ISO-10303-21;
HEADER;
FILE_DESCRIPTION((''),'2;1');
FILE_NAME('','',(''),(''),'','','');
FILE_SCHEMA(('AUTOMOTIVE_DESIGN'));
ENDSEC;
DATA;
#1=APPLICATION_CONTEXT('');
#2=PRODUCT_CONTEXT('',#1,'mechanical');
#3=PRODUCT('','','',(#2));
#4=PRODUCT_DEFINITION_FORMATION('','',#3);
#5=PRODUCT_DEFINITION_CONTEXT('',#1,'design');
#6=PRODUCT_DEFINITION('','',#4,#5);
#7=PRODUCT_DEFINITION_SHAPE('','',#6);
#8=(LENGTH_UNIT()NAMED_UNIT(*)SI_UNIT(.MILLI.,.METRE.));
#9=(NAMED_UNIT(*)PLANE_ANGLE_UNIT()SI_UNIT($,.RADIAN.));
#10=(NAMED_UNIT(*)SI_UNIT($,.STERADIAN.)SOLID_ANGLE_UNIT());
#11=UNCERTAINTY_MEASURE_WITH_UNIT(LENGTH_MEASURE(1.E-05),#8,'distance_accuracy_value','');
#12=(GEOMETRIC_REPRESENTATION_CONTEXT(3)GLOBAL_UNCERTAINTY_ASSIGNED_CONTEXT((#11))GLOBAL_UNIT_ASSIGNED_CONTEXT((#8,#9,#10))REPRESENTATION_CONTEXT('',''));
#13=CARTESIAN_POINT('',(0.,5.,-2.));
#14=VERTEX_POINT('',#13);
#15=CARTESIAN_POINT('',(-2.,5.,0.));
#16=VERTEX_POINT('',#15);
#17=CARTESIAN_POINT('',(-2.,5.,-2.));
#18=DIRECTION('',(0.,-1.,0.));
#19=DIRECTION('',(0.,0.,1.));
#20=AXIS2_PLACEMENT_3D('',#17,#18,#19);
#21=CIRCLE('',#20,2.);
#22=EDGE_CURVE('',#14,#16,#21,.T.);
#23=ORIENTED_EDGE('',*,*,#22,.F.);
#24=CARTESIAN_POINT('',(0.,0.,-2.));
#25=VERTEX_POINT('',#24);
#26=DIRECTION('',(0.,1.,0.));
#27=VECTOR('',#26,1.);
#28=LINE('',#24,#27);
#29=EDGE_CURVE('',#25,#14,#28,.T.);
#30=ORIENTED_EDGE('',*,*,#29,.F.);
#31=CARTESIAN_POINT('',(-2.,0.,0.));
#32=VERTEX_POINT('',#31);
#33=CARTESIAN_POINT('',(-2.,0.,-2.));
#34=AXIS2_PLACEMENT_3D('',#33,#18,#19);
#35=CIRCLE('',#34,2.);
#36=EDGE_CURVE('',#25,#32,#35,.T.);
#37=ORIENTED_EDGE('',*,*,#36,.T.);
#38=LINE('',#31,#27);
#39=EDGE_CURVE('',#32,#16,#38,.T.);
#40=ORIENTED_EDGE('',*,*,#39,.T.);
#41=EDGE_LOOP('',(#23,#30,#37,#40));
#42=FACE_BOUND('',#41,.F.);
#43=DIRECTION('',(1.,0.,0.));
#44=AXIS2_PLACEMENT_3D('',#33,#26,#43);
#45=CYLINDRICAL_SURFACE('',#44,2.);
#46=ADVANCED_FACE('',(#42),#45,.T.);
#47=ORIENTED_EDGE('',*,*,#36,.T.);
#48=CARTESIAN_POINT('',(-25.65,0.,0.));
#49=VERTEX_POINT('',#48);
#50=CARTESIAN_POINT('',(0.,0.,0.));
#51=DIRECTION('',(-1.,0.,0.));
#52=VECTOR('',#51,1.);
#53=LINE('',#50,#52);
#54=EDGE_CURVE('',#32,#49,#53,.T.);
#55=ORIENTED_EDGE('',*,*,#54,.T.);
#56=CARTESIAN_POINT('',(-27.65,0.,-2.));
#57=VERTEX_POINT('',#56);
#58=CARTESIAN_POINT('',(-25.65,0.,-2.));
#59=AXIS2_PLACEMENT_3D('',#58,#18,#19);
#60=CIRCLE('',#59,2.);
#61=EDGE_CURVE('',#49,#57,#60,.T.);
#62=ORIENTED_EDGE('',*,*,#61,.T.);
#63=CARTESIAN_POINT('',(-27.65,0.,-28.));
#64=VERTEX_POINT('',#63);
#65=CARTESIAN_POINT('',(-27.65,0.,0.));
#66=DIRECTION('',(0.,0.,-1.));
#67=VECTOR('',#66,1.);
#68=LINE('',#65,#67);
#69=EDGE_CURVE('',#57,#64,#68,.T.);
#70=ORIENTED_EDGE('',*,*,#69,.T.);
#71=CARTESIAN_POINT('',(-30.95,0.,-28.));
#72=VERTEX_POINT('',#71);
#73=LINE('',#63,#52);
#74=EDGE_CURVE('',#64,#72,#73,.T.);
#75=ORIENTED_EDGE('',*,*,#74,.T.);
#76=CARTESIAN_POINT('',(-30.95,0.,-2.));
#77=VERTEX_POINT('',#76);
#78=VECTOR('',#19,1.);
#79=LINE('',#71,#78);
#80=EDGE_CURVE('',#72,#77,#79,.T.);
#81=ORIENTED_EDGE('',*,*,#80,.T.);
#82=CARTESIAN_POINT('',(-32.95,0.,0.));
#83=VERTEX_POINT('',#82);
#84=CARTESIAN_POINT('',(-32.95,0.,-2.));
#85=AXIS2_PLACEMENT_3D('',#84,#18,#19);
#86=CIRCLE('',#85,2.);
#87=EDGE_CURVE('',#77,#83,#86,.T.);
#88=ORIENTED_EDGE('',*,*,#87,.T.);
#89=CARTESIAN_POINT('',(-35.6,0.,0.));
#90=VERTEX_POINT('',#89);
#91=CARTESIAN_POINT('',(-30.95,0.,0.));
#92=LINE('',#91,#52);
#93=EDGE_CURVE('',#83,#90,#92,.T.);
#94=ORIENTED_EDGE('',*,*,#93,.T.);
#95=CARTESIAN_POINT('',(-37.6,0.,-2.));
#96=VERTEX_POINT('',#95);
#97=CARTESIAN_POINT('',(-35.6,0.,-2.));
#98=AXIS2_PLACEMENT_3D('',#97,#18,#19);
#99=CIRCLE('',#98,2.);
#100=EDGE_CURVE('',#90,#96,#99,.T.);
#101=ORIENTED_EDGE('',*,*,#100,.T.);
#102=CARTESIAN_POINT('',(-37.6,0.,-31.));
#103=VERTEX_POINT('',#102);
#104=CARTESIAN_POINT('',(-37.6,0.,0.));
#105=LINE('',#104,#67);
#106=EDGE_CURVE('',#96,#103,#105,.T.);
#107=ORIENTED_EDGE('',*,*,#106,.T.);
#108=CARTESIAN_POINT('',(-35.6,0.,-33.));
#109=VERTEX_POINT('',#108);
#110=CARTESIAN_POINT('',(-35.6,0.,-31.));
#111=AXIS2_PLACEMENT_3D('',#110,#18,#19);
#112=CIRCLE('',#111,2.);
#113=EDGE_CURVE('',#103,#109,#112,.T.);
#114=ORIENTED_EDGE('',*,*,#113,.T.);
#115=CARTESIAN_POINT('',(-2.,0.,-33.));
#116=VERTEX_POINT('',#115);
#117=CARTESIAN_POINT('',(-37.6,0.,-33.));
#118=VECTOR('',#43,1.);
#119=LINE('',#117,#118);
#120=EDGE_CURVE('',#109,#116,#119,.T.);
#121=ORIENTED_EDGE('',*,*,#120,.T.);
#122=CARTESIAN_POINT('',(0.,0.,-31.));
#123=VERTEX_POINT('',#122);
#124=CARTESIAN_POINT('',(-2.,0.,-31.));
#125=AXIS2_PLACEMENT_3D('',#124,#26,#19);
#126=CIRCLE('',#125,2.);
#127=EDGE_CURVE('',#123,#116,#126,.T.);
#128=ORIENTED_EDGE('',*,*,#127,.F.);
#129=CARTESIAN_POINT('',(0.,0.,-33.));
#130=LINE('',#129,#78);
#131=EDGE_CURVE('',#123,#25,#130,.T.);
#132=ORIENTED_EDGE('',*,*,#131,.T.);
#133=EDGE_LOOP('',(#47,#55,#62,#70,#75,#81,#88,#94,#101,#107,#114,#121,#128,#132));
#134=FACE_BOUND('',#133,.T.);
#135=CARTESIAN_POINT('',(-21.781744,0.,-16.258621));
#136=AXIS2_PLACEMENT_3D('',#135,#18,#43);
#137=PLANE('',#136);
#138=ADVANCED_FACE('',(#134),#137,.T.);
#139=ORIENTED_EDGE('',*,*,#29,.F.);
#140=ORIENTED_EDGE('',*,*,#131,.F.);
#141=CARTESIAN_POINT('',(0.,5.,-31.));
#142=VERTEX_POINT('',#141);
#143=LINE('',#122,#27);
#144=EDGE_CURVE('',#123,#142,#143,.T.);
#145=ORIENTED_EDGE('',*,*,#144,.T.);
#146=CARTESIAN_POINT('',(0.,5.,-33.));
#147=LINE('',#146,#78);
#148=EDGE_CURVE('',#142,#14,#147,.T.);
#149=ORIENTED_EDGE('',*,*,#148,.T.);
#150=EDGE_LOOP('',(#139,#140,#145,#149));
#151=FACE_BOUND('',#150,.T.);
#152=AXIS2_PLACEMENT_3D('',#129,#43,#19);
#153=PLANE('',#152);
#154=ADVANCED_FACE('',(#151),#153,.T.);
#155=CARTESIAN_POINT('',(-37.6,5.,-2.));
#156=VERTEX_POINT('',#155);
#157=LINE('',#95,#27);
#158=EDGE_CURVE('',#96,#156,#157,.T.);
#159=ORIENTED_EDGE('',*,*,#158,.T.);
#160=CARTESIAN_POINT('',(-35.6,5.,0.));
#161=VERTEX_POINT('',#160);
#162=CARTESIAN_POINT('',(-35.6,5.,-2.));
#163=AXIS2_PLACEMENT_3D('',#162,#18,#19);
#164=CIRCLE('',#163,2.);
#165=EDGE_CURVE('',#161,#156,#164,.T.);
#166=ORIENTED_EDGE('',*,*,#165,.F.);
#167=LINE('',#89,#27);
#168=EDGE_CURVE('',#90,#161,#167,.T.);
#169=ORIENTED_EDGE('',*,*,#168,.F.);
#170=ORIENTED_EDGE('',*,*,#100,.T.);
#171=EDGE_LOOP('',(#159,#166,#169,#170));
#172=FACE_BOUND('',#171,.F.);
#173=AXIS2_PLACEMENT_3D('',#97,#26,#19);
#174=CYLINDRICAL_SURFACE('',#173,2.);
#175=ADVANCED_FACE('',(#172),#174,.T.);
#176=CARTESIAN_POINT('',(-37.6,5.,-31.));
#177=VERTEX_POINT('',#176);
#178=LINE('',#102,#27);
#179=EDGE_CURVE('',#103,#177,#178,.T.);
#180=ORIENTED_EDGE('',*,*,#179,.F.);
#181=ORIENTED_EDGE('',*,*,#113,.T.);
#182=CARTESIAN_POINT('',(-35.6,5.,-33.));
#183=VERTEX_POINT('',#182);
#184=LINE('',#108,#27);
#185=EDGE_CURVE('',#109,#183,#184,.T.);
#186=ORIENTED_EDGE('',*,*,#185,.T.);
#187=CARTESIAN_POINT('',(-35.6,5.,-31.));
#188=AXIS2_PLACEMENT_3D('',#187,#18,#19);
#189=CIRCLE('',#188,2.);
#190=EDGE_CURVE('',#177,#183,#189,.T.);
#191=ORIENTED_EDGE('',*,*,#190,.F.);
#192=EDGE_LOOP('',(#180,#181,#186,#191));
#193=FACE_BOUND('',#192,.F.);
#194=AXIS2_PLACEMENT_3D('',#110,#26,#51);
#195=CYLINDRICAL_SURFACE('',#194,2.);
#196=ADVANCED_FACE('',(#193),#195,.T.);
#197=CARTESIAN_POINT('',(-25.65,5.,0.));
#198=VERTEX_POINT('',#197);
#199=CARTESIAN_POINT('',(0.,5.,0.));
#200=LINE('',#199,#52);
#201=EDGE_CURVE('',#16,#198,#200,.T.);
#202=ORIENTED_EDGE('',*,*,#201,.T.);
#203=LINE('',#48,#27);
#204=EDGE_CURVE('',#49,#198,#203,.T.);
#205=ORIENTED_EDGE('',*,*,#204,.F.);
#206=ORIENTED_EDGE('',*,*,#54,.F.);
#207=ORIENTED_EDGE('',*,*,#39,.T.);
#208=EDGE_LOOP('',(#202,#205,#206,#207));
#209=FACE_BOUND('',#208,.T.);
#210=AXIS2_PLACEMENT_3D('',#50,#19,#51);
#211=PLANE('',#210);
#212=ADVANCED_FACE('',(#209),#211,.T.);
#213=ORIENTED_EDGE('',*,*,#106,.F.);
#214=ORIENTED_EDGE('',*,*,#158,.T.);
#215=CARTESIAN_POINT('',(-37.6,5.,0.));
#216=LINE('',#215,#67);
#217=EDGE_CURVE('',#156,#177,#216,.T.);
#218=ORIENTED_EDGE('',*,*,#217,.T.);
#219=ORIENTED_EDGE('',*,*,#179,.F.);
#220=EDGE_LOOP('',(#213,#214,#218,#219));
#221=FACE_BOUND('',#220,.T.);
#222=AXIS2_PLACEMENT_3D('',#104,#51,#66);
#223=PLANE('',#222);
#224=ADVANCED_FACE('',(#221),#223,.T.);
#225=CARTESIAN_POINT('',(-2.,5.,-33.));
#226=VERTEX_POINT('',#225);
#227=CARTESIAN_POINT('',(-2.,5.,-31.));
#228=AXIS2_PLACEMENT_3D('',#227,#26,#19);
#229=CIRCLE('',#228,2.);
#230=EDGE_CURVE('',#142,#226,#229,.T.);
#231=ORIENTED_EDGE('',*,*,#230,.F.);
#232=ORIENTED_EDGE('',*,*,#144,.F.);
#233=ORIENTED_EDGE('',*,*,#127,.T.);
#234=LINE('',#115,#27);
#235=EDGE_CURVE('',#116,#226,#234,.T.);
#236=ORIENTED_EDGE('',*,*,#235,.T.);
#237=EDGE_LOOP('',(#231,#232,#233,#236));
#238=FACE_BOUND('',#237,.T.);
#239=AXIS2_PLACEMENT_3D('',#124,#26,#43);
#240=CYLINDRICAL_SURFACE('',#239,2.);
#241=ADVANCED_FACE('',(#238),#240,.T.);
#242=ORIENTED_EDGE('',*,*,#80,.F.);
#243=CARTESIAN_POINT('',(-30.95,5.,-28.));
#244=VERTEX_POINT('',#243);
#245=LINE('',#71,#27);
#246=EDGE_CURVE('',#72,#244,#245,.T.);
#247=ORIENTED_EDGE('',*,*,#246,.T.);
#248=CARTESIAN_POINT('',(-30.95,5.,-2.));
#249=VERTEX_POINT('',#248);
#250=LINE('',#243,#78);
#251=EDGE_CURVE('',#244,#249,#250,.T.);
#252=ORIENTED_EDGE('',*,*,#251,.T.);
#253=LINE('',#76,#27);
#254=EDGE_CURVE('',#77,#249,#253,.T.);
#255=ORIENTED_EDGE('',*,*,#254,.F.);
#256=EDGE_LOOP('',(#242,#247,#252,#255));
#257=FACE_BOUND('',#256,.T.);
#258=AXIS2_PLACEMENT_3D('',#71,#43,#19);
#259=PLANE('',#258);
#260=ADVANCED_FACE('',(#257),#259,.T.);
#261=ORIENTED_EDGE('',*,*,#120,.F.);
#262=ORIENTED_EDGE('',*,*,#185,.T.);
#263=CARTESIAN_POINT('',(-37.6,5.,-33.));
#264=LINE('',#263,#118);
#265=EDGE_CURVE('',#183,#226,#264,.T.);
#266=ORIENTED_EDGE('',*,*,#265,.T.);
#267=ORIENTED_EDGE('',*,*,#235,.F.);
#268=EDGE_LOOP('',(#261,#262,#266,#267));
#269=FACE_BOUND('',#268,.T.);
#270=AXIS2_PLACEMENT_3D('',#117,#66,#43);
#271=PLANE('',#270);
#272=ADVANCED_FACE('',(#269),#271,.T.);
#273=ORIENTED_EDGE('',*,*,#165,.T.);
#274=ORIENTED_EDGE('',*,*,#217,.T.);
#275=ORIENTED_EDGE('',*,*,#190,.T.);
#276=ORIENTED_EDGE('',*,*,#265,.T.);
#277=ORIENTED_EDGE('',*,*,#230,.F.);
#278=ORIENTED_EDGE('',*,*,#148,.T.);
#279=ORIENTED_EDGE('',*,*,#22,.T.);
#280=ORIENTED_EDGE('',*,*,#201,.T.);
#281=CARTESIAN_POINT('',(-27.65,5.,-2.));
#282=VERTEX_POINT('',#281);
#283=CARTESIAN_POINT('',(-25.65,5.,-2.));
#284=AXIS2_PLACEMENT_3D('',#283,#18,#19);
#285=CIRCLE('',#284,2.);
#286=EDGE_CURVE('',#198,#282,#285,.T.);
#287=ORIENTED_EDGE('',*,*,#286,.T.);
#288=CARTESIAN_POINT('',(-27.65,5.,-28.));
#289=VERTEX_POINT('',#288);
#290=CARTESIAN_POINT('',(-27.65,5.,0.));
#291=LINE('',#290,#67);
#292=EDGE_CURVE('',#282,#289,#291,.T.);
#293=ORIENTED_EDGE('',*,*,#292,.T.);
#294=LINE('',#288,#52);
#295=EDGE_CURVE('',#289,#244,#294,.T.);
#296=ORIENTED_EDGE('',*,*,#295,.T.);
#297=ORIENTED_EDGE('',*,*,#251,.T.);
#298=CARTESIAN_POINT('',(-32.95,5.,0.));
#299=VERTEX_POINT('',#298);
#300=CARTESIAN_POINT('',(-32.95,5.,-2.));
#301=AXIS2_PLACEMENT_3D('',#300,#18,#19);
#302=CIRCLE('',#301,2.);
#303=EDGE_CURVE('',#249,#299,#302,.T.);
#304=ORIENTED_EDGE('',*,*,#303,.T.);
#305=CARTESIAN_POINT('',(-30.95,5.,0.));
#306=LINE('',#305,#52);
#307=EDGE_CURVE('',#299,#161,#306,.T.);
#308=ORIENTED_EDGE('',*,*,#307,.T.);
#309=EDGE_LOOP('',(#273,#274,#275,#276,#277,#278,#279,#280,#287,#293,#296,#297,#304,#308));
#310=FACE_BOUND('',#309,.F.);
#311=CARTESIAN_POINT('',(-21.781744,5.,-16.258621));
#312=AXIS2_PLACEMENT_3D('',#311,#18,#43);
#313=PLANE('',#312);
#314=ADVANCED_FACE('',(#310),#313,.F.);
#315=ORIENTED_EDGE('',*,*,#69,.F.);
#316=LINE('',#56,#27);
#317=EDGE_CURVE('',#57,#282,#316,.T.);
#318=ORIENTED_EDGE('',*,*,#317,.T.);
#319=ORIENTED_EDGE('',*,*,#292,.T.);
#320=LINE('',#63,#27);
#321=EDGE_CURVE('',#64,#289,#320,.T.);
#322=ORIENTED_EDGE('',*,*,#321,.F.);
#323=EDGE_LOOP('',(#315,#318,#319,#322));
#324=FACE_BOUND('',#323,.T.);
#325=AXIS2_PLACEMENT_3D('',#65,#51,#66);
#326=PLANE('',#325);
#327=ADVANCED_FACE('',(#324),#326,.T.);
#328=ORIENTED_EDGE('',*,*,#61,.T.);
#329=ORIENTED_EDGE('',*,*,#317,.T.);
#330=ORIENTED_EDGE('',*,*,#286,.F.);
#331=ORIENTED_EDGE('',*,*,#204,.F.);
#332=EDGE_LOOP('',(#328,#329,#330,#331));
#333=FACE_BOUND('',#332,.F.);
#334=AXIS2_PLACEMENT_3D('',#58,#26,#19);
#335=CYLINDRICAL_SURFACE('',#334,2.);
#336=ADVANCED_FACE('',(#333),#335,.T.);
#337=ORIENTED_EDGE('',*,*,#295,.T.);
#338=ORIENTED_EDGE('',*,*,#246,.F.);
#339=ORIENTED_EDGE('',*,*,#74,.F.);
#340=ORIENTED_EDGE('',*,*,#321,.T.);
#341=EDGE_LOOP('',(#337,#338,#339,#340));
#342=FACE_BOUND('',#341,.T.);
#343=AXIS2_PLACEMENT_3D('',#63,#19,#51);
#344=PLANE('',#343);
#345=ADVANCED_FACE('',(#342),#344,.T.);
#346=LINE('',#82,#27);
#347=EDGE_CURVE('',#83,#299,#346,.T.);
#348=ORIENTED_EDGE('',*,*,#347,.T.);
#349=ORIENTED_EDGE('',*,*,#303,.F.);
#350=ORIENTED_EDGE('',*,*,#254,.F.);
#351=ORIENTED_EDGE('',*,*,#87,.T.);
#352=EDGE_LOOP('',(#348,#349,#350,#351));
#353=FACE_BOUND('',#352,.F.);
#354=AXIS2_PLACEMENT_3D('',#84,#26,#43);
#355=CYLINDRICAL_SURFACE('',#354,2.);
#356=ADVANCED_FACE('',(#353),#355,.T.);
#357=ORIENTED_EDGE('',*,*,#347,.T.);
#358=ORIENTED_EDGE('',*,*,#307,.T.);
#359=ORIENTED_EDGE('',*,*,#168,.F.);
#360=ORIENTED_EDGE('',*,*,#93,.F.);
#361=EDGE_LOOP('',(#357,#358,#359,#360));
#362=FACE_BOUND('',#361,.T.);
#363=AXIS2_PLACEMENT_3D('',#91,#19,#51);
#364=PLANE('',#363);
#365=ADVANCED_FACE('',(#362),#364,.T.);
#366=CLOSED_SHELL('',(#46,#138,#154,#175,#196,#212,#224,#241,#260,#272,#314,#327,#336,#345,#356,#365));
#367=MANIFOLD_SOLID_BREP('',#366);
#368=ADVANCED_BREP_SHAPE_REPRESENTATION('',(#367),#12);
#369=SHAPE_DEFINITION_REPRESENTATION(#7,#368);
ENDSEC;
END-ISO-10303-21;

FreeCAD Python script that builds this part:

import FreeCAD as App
import Part
import Sketcher
Q = App.Units.Quantity


def edges_at(feature, points):
    """Names of the edges that pass closest to the given points."""
    edges = feature.Shape.Edges
    near = lambda p: min(range(len(edges)), key=lambda i: edges[i].distToShape(Part.Vertex(*p))[0])
    return sorted({f"Edge{near(p) + 1}" for p in points})


def add_polygon(sketch, points):
    """Adds a closed chain of lines whose ends are joined by coincident constraints."""
    first, n = sketch.GeometryCount, len(points)
    for a, b in zip(points, points[1:] + points[:1]):
        sketch.addGeometry(Part.LineSegment(App.Vector(*a, 0), App.Vector(*b, 0)), False)
    for i in range(n):
        sketch.addConstraint(Sketcher.Constraint("Coincident", first + i, 2, first + (i + 1) % n, 1))

doc = App.newDocument("Part")
body = doc.addObject("PartDesign::Body", "Body")

sketch1 = doc.addObject("Sketcher::SketchObject", "Sketch")
body.addObject(sketch1)
sketch1.AttachmentSupport = (doc.XZ_Plane, [""])
sketch1.MapMode = "FlatFace"
add_polygon(sketch1, [(0, -33), (0, 0), (-27.65, 0), (-27.65, -28), (-30.95, -28), (-30.95, 0), (-37.6, 0), (-37.6, -33)])
sketch1.addConstraint(Sketcher.Constraint("Vertical", 0))
sketch1.addConstraint(Sketcher.Constraint("Horizontal", 1))
sketch1.addConstraint(Sketcher.Constraint("Vertical", 2))
sketch1.addConstraint(Sketcher.Constraint("Horizontal", 3))
sketch1.addConstraint(Sketcher.Constraint("Vertical", 4))
sketch1.addConstraint(Sketcher.Constraint("Horizontal", 5))
sketch1.addConstraint(Sketcher.Constraint("Vertical", 6))
sketch1.addConstraint(Sketcher.Constraint("Horizontal", 7))
sketch1.addConstraint(Sketcher.Constraint("Coincident", 0, 2, -1, 1))
sketch1.addConstraint(Sketcher.Constraint("PointOnObject", 4, 2, -1))
sketch1.addConstraint(Sketcher.Constraint("DistanceY", 0, 1, 0, 2, Q("33 mm")))
sketch1.addConstraint(Sketcher.Constraint("DistanceY", 2, 2, 2, 1, Q("28 mm")))
sketch1.addConstraint(Sketcher.Constraint("DistanceX", 3, 2, 3, 1, Q("3.3 mm")))
sketch1.addConstraint(Sketcher.Constraint("DistanceX", 7, 1, 7, 2, Q("37.6 mm")))
sketch1.addConstraint(Sketcher.Constraint("DistanceX", 1, 2, 1, 1, Q("27.65 mm")))
pad1 = doc.addObject("PartDesign::Pad", "Pad")
body.addObject(pad1)
pad1.Profile = sketch1
pad1.Length = 5
pad1.Reversed = True
doc.recompute()

fillet = doc.addObject("PartDesign::Fillet", "Fillet")
body.addObject(fillet)
fillet.Base = (pad1, edges_at(pad1, [
    (-37.6, 2.5, 0),
    (-30.95, 2.5, 0),
    (-27.65, 2.5, 0),
    (0, 2.5, 0),
    (0, 2.5, -33),
    (-37.6, 2.5, -33),
]))
fillet.Radius = 2

doc.recompute()
